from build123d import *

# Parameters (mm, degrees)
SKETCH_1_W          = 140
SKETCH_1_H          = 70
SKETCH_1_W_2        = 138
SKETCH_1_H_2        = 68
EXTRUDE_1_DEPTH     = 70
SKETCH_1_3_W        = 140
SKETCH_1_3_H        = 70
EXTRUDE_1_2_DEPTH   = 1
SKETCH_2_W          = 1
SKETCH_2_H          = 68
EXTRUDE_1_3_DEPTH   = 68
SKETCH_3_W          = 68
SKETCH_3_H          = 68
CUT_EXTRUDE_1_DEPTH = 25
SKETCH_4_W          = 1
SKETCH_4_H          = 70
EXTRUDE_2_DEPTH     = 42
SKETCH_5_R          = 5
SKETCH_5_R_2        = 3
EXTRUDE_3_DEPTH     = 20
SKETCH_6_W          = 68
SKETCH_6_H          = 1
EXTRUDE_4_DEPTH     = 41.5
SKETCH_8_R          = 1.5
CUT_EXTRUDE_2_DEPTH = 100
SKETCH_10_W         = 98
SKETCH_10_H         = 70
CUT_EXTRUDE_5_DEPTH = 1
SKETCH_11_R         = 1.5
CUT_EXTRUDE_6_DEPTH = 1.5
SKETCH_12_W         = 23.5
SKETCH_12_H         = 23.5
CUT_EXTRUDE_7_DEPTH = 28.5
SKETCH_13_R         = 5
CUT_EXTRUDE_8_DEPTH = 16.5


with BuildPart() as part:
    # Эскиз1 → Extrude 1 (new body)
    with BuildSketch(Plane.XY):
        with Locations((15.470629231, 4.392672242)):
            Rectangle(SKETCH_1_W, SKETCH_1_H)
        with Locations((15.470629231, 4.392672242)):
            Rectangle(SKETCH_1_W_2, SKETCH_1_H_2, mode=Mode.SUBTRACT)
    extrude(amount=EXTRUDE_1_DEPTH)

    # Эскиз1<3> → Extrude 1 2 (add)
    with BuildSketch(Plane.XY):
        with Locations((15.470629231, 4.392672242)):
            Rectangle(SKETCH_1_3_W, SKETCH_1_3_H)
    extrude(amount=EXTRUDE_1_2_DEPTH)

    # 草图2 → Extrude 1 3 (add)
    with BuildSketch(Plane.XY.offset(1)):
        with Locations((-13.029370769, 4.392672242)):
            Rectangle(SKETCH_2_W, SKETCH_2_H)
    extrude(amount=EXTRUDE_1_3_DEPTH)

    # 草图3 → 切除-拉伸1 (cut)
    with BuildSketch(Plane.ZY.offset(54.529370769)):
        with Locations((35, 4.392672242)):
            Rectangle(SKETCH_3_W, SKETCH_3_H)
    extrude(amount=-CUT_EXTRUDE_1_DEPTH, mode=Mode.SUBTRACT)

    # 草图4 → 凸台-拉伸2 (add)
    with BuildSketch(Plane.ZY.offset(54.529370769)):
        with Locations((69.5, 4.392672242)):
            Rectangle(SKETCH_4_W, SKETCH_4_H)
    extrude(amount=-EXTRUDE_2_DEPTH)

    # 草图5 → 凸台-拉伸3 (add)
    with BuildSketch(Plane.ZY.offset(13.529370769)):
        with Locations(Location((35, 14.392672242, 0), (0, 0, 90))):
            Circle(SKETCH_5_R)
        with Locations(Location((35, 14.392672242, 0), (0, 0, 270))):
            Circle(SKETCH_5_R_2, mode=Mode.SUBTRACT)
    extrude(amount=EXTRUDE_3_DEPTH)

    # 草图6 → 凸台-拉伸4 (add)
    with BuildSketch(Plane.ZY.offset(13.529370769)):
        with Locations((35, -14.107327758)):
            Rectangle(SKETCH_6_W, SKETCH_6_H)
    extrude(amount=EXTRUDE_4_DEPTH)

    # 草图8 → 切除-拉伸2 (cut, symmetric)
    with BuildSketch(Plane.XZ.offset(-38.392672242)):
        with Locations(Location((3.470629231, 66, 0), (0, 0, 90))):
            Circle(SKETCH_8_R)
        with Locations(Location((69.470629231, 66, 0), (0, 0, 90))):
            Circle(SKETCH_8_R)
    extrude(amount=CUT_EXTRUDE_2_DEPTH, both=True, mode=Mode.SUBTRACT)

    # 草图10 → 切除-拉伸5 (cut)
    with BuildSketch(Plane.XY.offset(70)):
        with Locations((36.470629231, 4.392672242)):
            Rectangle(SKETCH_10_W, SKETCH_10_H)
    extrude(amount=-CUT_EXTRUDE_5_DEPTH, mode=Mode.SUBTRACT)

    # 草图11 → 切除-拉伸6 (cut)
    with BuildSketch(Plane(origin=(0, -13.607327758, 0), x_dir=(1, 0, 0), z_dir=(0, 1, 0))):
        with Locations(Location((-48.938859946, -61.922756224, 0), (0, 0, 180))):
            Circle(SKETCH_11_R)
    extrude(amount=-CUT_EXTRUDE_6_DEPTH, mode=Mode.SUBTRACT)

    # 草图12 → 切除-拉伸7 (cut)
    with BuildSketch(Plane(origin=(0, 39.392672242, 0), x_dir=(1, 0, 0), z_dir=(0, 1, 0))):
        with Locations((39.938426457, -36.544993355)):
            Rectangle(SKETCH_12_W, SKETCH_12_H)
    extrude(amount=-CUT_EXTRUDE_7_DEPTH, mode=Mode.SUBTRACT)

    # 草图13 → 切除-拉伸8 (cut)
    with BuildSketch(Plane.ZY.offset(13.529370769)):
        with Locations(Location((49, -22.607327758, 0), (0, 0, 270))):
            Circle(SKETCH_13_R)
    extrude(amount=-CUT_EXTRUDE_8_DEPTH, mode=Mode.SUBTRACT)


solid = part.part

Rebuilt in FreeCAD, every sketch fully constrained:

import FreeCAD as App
import Part
import Sketcher

V = App.Vector

doc = App.newDocument("Part")
params = doc.addObject("Spreadsheet::Sheet", "Params")
for row, (alias, value) in enumerate([
    ("sketch1_width", "140 mm"),
    ("sketch1_width2", "138 mm"),
    ("sketch1_height", "70 mm"),
    ("sketch1_height2", "68 mm"),
    ("pad1_length", "70 mm"),
    ("sketch2_width", "140 mm"),
    ("sketch2_height", "70 mm"),
    ("pad2_length", "1 mm"),
    ("sketch3_width", "1 mm"),
    ("sketch3_height", "68 mm"),
    ("pad3_length", "68 mm"),
    ("sketch4_width", "68 mm"),
    ("pocket1_length", "25 mm"),
    ("sketch5_width", "70 mm"),
    ("sketch5_height", "1 mm"),
    ("pad4_length", "42 mm"),
    ("sketch6_diameter", "10 mm"),
    ("sketch6_diameter2", "6 mm"),
    ("pad5_length", "20 mm"),
    ("sketch7_width", "1 mm"),
    ("sketch7_height", "68 mm"),
    ("pad6_length", "41.5 mm"),
    ("sketch8_diameter", "3 mm"),
    ("pocket2_length", "200 mm"),
    ("sketch9_width", "98 mm"),
    ("sketch9_height", "70 mm"),
    ("pocket3_length", "1 mm"),
    ("sketch10_diameter", "3 mm"),
    ("pocket4_length", "1.5 mm"),
    ("sketch11_width", "23.5 mm"),
    ("pocket5_length", "28.5 mm"),
    ("sketch12_diameter", "10 mm"),
    ("pocket6_length", "16.5 mm"),
], start=1):
    params.set(f"A{row}", alias)
    params.set(f"B{row}", "=" + value)
    params.setAlias(f"B{row}", alias)

body = doc.addObject("PartDesign::Body", "Body")

# Sketch on XY plane
sketch1 = doc.addObject("Sketcher::SketchObject", "Sketch")
body.addObject(sketch1)
sketch1.AttachmentSupport = (doc.XY_Plane, [""])
sketch1.MapMode = "FlatFace"
sketch1.addGeometry(Part.LineSegment(V(-55, 39, 0), V(-55, -31, 0)), False)
sketch1.addGeometry(Part.LineSegment(V(-55, -31, 0), V(85, -31, 0)), False)
sketch1.addGeometry(Part.LineSegment(V(85, -31, 0), V(85, 39, 0)), False)
sketch1.addGeometry(Part.LineSegment(V(85, 39, 0), V(-55, 39, 0)), False)
sketch1.addGeometry(Part.LineSegment(V(84, -30, 0), V(-54, -30, 0)), False)
sketch1.addGeometry(Part.LineSegment(V(-54, -30, 0), V(-54, 38, 0)), False)
sketch1.addGeometry(Part.LineSegment(V(-54, 38, 0), V(84, 38, 0)), False)
sketch1.addGeometry(Part.LineSegment(V(84, 38, 0), V(84, -30, 0)), False)
sketch1.addConstraint(Sketcher.Constraint("Coincident", 0, 2, 1, 1))
sketch1.addConstraint(Sketcher.Constraint("Coincident", 1, 2, 2, 1))
sketch1.addConstraint(Sketcher.Constraint("Coincident", 2, 2, 3, 1))
sketch1.addConstraint(Sketcher.Constraint("Coincident", 3, 2, 0, 1))
sketch1.addConstraint(Sketcher.Constraint("Coincident", 4, 2, 5, 1))
sketch1.addConstraint(Sketcher.Constraint("Coincident", 5, 2, 6, 1))
sketch1.addConstraint(Sketcher.Constraint("Coincident", 6, 2, 7, 1))
sketch1.addConstraint(Sketcher.Constraint("Coincident", 7, 2, 4, 1))
sketch1.addConstraint(Sketcher.Constraint("Vertical", 0))
sketch1.addConstraint(Sketcher.Constraint("Horizontal", 1))
sketch1.addConstraint(Sketcher.Constraint("Vertical", 2))
sketch1.addConstraint(Sketcher.Constraint("Horizontal", 3))
sketch1.addConstraint(Sketcher.Constraint("Horizontal", 4))
sketch1.addConstraint(Sketcher.Constraint("Vertical", 5))
sketch1.addConstraint(Sketcher.Constraint("Horizontal", 6))
sketch1.addConstraint(Sketcher.Constraint("Vertical", 7))
sketch1.addConstraint(Sketcher.Constraint("DistanceX", 1, 1, 1, 2, 140.0))
sketch1.addConstraint(Sketcher.Constraint("DistanceX", 4, 2, 4, 1, 138.0))
sketch1.addConstraint(Sketcher.Constraint("DistanceY", 0, 2, 0, 1, 70.0))
sketch1.addConstraint(Sketcher.Constraint("DistanceY", 5, 1, 5, 2, 68.0))
sketch1.addConstraint(Sketcher.Constraint("DistanceX", 0, 2, 4, 2, 1.0))
sketch1.addConstraint(Sketcher.Constraint("DistanceY", 0, 2, 4, 2, 1.0))
sketch1.addConstraint(Sketcher.Constraint("DistanceX", 0, 2, -1, 1, 54.529371))
sketch1.addConstraint(Sketcher.Constraint("DistanceY", 0, 2, -1, 1, 30.607328))
sketch1.setExpression("Constraints[16]", "Params.sketch1_width")
sketch1.setExpression("Constraints[17]", "Params.sketch1_width2")
sketch1.setExpression("Constraints[18]", "Params.sketch1_height")
sketch1.setExpression("Constraints[19]", "Params.sketch1_height2")
pad1 = doc.addObject("PartDesign::Pad", "Pad")
body.addObject(pad1)
pad1.Profile = sketch1
pad1.setExpression("Length", "Params.pad1_length")

# Sketch on XY plane
sketch2 = doc.addObject("Sketcher::SketchObject", "Sketch001")
body.addObject(sketch2)
sketch2.AttachmentSupport = (doc.XY_Plane, [""])
sketch2.MapMode = "FlatFace"
sketch2.addGeometry(Part.LineSegment(V(-55, 39, 0), V(-55, -31, 0)), False)
sketch2.addGeometry(Part.LineSegment(V(-55, -31, 0), V(85, -31, 0)), False)
sketch2.addGeometry(Part.LineSegment(V(85, -31, 0), V(85, 39, 0)), False)
sketch2.addGeometry(Part.LineSegment(V(85, 39, 0), V(-55, 39, 0)), False)
sketch2.addConstraint(Sketcher.Constraint("Coincident", 0, 2, 1, 1))
sketch2.addConstraint(Sketcher.Constraint("Coincident", 1, 2, 2, 1))
sketch2.addConstraint(Sketcher.Constraint("Coincident", 2, 2, 3, 1))
sketch2.addConstraint(Sketcher.Constraint("Coincident", 3, 2, 0, 1))
sketch2.addConstraint(Sketcher.Constraint("Vertical", 0))
sketch2.addConstraint(Sketcher.Constraint("Horizontal", 1))
sketch2.addConstraint(Sketcher.Constraint("Vertical", 2))
sketch2.addConstraint(Sketcher.Constraint("Horizontal", 3))
sketch2.addConstraint(Sketcher.Constraint("DistanceX", 1, 1, 1, 2, 140.0))
sketch2.addConstraint(Sketcher.Constraint("DistanceY", 0, 2, 0, 1, 70.0))
sketch2.addConstraint(Sketcher.Constraint("DistanceX", 0, 2, -1, 1, 54.529371))
sketch2.addConstraint(Sketcher.Constraint("DistanceY", 0, 2, -1, 1, 30.607328))
sketch2.setExpression("Constraints[8]", "Params.sketch2_width")
sketch2.setExpression("Constraints[9]", "Params.sketch2_height")
pad2 = doc.addObject("PartDesign::Pad", "Pad001")
body.addObject(pad2)
pad2.Profile = sketch2
pad2.setExpression("Length", "Params.pad2_length")

# Sketch on XY plane
sketch3 = doc.addObject("Sketcher::SketchObject", "Sketch002")
body.addObject(sketch3)
sketch3.AttachmentSupport = (doc.XY_Plane, [""])
sketch3.MapMode = "FlatFace"
sketch3.AttachmentOffset = App.Placement(V(0, 0, 1), App.Rotation())
sketch3.addGeometry(Part.LineSegment(V(-13.5, 38.4, 0), V(-13.5, -29.6, 0)), False)
sketch3.addGeometry(Part.LineSegment(V(-13.5, -29.6, 0), V(-12.5, -29.6, 0)), False)
sketch3.addGeometry(Part.LineSegment(V(-12.5, -29.6, 0), V(-12.5, 38.4, 0)), False)
sketch3.addGeometry(Part.LineSegment(V(-12.5, 38.4, 0), V(-13.5, 38.4, 0)), False)
sketch3.addConstraint(Sketcher.Constraint("Coincident", 0, 2, 1, 1))
sketch3.addConstraint(Sketcher.Constraint("Coincident", 1, 2, 2, 1))
sketch3.addConstraint(Sketcher.Constraint("Coincident", 2, 2, 3, 1))
sketch3.addConstraint(Sketcher.Constraint("Coincident", 3, 2, 0, 1))
sketch3.addConstraint(Sketcher.Constraint("Vertical", 0))
sketch3.addConstraint(Sketcher.Constraint("Horizontal", 1))
sketch3.addConstraint(Sketcher.Constraint("Vertical", 2))
sketch3.addConstraint(Sketcher.Constraint("Horizontal", 3))
sketch3.addConstraint(Sketcher.Constraint("DistanceX", 1, 1, 1, 2, 1.0))
sketch3.addConstraint(Sketcher.Constraint("DistanceY", 0, 2, 0, 1, 68.0))
sketch3.addConstraint(Sketcher.Constraint("DistanceX", 0, 2, -1, 1, 13.529371))
sketch3.addConstraint(Sketcher.Constraint("DistanceY", 0, 2, -1, 1, 29.607328))
sketch3.setExpression("Constraints[8]", "Params.sketch3_width")
sketch3.setExpression("Constraints[9]", "Params.sketch3_height")
pad3 = doc.addObject("PartDesign::Pad", "Pad002")
body.addObject(pad3)
pad3.Profile = sketch3
pad3.setExpression("Length", "Params.pad3_length")

# Sketch on YZ plane
sketch4 = doc.addObject("Sketcher::SketchObject", "Sketch003")
body.addObject(sketch4)
sketch4.AttachmentSupport = (doc.YZ_Plane, [""])
sketch4.MapMode = "FlatFace"
sketch4.AttachmentOffset = App.Placement(V(0, 0, -54.529371), App.Rotation())
sketch4.addGeometry(Part.LineSegment(V(38, 1, 0), V(-30, 1, 0)), False)
sketch4.addGeometry(Part.LineSegment(V(-30, 1, 0), V(-30, 69, 0)), False)
sketch4.addGeometry(Part.LineSegment(V(-30, 69, 0), V(38, 69, 0)), False)
sketch4.addGeometry(Part.LineSegment(V(38, 69, 0), V(38, 1, 0)), False)
sketch4.addConstraint(Sketcher.Constraint("Coincident", 0, 2, 1, 1))
sketch4.addConstraint(Sketcher.Constraint("Coincident", 1, 2, 2, 1))
sketch4.addConstraint(Sketcher.Constraint("Coincident", 2, 2, 3, 1))
sketch4.addConstraint(Sketcher.Constraint("Coincident", 3, 2, 0, 1))
sketch4.addConstraint(Sketcher.Constraint("Horizontal", 0))
sketch4.addConstraint(Sketcher.Constraint("Vertical", 1))
sketch4.addConstraint(Sketcher.Constraint("Horizontal", 2))
sketch4.addConstraint(Sketcher.Constraint("Vertical", 3))
sketch4.addConstraint(Sketcher.Constraint("Equal", 2, 1))
sketch4.addConstraint(Sketcher.Constraint("DistanceX", 0, 2, 0, 1, 68.0))
sketch4.addConstraint(Sketcher.Constraint("DistanceY", -1, 1, 0, 2, 1.0))
sketch4.addConstraint(Sketcher.Constraint("DistanceX", 0, 2, -1, 1, 29.607328))
sketch4.setExpression("Constraints[9]", "Params.sketch4_width")
pocket1 = doc.addObject("PartDesign::Pocket", "Pocket")
body.addObject(pocket1)
pocket1.Profile = sketch4
pocket1.setExpression("Length", "Params.pocket1_length")
pocket1.Reversed = True

# Sketch on YZ plane
sketch5 = doc.addObject("Sketcher::SketchObject", "Sketch004")
body.addObject(sketch5)
sketch5.AttachmentSupport = (doc.YZ_Plane, [""])
sketch5.MapMode = "FlatFace"
sketch5.AttachmentOffset = App.Placement(V(0, 0, -54.529371), App.Rotation())
sketch5.addGeometry(Part.LineSegment(V(39.4, 69, 0), V(-30.6, 69, 0)), False)
sketch5.addGeometry(Part.LineSegment(V(-30.6, 69, 0), V(-30.6, 70, 0)), False)
sketch5.addGeometry(Part.LineSegment(V(-30.6, 70, 0), V(39.4, 70, 0)), False)
sketch5.addGeometry(Part.LineSegment(V(39.4, 70, 0), V(39.4, 69, 0)), False)
sketch5.addConstraint(Sketcher.Constraint("Coincident", 0, 2, 1, 1))
sketch5.addConstraint(Sketcher.Constraint("Coincident", 1, 2, 2, 1))
sketch5.addConstraint(Sketcher.Constraint("Coincident", 2, 2, 3, 1))
sketch5.addConstraint(Sketcher.Constraint("Coincident", 3, 2, 0, 1))
sketch5.addConstraint(Sketcher.Constraint("Horizontal", 0))
sketch5.addConstraint(Sketcher.Constraint("Vertical", 1))
sketch5.addConstraint(Sketcher.Constraint("Horizontal", 2))
sketch5.addConstraint(Sketcher.Constraint("Vertical", 3))
sketch5.addConstraint(Sketcher.Constraint("DistanceX", 0, 2, 0, 1, 70.0))
sketch5.addConstraint(Sketcher.Constraint("DistanceY", 1, 1, 1, 2, 1.0))
sketch5.addConstraint(Sketcher.Constraint("DistanceY", -1, 1, 0, 2, 69.0))
sketch5.addConstraint(Sketcher.Constraint("DistanceX", 0, 2, -1, 1, 30.607328))
sketch5.setExpression("Constraints[8]", "Params.sketch5_width")
sketch5.setExpression("Constraints[9]", "Params.sketch5_height")
pad4 = doc.addObject("PartDesign::Pad", "Pad003")
body.addObject(pad4)
pad4.Profile = sketch5
pad4.setExpression("Length", "Params.pad4_length")

# Sketch on YZ plane
sketch6 = doc.addObject("Sketcher::SketchObject", "Sketch005")
body.addObject(sketch6)
sketch6.AttachmentSupport = (doc.YZ_Plane, [""])
sketch6.MapMode = "FlatFace"
sketch6.AttachmentOffset = App.Placement(V(0, 0, -13.529371), App.Rotation())
sketch6.addGeometry(Part.Circle(V(14.4, 35, 0), V(0, 0, 1), 5), False)
sketch6.addGeometry(Part.Circle(V(14.4, 35, 0), V(0, 0, 1), 3), False)
sketch6.addConstraint(Sketcher.Constraint("Coincident", 1, 3, 0, 3))
sketch6.addConstraint(Sketcher.Constraint("Diameter", 0, 10.0))
sketch6.addConstraint(Sketcher.Constraint("Diameter", 1, 6.0))
sketch6.addConstraint(Sketcher.Constraint("DistanceY", -1, 1, 0, 3, 35.0))
sketch6.addConstraint(Sketcher.Constraint("DistanceX", -1, 1, 0, 3, 14.392672))
sketch6.setExpression("Constraints[1]", "Params.sketch6_diameter")
sketch6.setExpression("Constraints[2]", "Params.sketch6_diameter2")
pad5 = doc.addObject("PartDesign::Pad", "Pad004")
body.addObject(pad5)
pad5.Profile = sketch6
pad5.setExpression("Length", "Params.pad5_length")
pad5.Reversed = True

# Sketch on YZ plane
sketch7 = doc.addObject("Sketcher::SketchObject", "Sketch006")
body.addObject(sketch7)
sketch7.AttachmentSupport = (doc.YZ_Plane, [""])
sketch7.MapMode = "FlatFace"
sketch7.AttachmentOffset = App.Placement(V(0, 0, -13.529371), App.Rotation())
sketch7.addGeometry(Part.LineSegment(V(-13.6, 1, 0), V(-14.6, 1, 0)), False)
sketch7.addGeometry(Part.LineSegment(V(-14.6, 1, 0), V(-14.6, 69, 0)), False)
sketch7.addGeometry(Part.LineSegment(V(-14.6, 69, 0), V(-13.6, 69, 0)), False)
sketch7.addGeometry(Part.LineSegment(V(-13.6, 69, 0), V(-13.6, 1, 0)), False)
sketch7.addConstraint(Sketcher.Constraint("Coincident", 0, 2, 1, 1))
sketch7.addConstraint(Sketcher.Constraint("Coincident", 1, 2, 2, 1))
sketch7.addConstraint(Sketcher.Constraint("Coincident", 2, 2, 3, 1))
sketch7.addConstraint(Sketcher.Constraint("Coincident", 3, 2, 0, 1))
sketch7.addConstraint(Sketcher.Constraint("Horizontal", 0))
sketch7.addConstraint(Sketcher.Constraint("Vertical", 1))
sketch7.addConstraint(Sketcher.Constraint("Horizontal", 2))
sketch7.addConstraint(Sketcher.Constraint("Vertical", 3))
sketch7.addConstraint(Sketcher.Constraint("DistanceX", 0, 2, 0, 1, 1.0))
sketch7.addConstraint(Sketcher.Constraint("DistanceY", 1, 1, 1, 2, 68.0))
sketch7.addConstraint(Sketcher.Constraint("DistanceY", -1, 1, 0, 2, 1.0))
sketch7.addConstraint(Sketcher.Constraint("DistanceX", 0, 2, -1, 1, 14.607328))
sketch7.setExpression("Constraints[8]", "Params.sketch7_width")
sketch7.setExpression("Constraints[9]", "Params.sketch7_height")
pad6 = doc.addObject("PartDesign::Pad", "Pad005")
body.addObject(pad6)
pad6.Profile = sketch7
pad6.setExpression("Length", "Params.pad6_length")
pad6.Reversed = True

# Sketch on XZ plane
sketch8 = doc.addObject("Sketcher::SketchObject", "Sketch007")
body.addObject(sketch8)
sketch8.AttachmentSupport = (doc.XZ_Plane, [""])
sketch8.MapMode = "FlatFace"
sketch8.AttachmentOffset = App.Placement(V(0, 0, -38.392672), App.Rotation())
sketch8.addGeometry(Part.Circle(V(3.5, 66, 0), V(0, 0, 1), 1.5), False)
sketch8.addGeometry(Part.Circle(V(69.5, 66, 0), V(0, 0, 1), 1.5), False)
sketch8.addConstraint(Sketcher.Constraint("Equal", 0, 1))
sketch8.addConstraint(Sketcher.Constraint("Horizontal", 0, 3, 1, 3))
sketch8.addConstraint(Sketcher.Constraint("Diameter", 0, 3.0))
sketch8.addConstraint(Sketcher.Constraint("DistanceY", -1, 1, 0, 3, 66.0))
sketch8.addConstraint(Sketcher.Constraint("DistanceX", 0, 3, 1, 3, 66.0))
sketch8.addConstraint(Sketcher.Constraint("DistanceX", -1, 1, 0, 3, 3.470629))
sketch8.setExpression("Constraints[2]", "Params.sketch8_diameter")
pocket2 = doc.addObject("PartDesign::Pocket", "Pocket001")
body.addObject(pocket2)
pocket2.Profile = sketch8
pocket2.setExpression("Length", "Params.pocket2_length")
pocket2.Midplane = True

# Sketch on XY plane
sketch9 = doc.addObject("Sketcher::SketchObject", "Sketch008")
body.addObject(sketch9)
sketch9.AttachmentSupport = (doc.XY_Plane, [""])
sketch9.MapMode = "FlatFace"
sketch9.AttachmentOffset = App.Placement(V(0, 0, 70), App.Rotation())
sketch9.addGeometry(Part.LineSegment(V(-13, 39, 0), V(-13, -31, 0)), False)
sketch9.addGeometry(Part.LineSegment(V(-13, -31, 0), V(85, -31, 0)), False)
sketch9.addGeometry(Part.LineSegment(V(85, -31, 0), V(85, 39, 0)), False)
sketch9.addGeometry(Part.LineSegment(V(85, 39, 0), V(-13, 39, 0)), False)
sketch9.addConstraint(Sketcher.Constraint("Coincident", 0, 2, 1, 1))
sketch9.addConstraint(Sketcher.Constraint("Coincident", 1, 2, 2, 1))
sketch9.addConstraint(Sketcher.Constraint("Coincident", 2, 2, 3, 1))
sketch9.addConstraint(Sketcher.Constraint("Coincident", 3, 2, 0, 1))
sketch9.addConstraint(Sketcher.Constraint("Vertical", 0))
sketch9.addConstraint(Sketcher.Constraint("Horizontal", 1))
sketch9.addConstraint(Sketcher.Constraint("Vertical", 2))
sketch9.addConstraint(Sketcher.Constraint("Horizontal", 3))
sketch9.addConstraint(Sketcher.Constraint("DistanceX", 1, 1, 1, 2, 98.0))
sketch9.addConstraint(Sketcher.Constraint("DistanceY", 0, 2, 0, 1, 70.0))
sketch9.addConstraint(Sketcher.Constraint("DistanceX", 0, 2, -1, 1, 12.529371))
sketch9.addConstraint(Sketcher.Constraint("DistanceY", 0, 2, -1, 1, 30.607328))
sketch9.setExpression("Constraints[8]", "Params.sketch9_width")
sketch9.setExpression("Constraints[9]", "Params.sketch9_height")
pocket3 = doc.addObject("PartDesign::Pocket", "Pocket002")
body.addObject(pocket3)
pocket3.Profile = sketch9
pocket3.setExpression("Length", "Params.pocket3_length")

# Sketch on XZ plane
sketch10 = doc.addObject("Sketcher::SketchObject", "Sketch009")
body.addObject(sketch10)
sketch10.AttachmentSupport = (doc.XZ_Plane, [""])
sketch10.MapMode = "FlatFace"
sketch10.AttachmentOffset = App.Placement(V(0, 0, 13.607328), App.Rotation())
sketch10.addGeometry(Part.Circle(V(-48.9, 61.9, 0), V(0, 0, 1), 1.5), False)
sketch10.addConstraint(Sketcher.Constraint("Diameter", 0, 3.0))
sketch10.addConstraint(Sketcher.Constraint("DistanceX", 0, 3, -1, 1, 48.93886))
sketch10.addConstraint(Sketcher.Constraint("DistanceY", -1, 1, 0, 3, 61.922756))
sketch10.setExpression("Constraints[0]", "Params.sketch10_diameter")
pocket4 = doc.addObject("PartDesign::Pocket", "Pocket003")
body.addObject(pocket4)
pocket4.Profile = sketch10
pocket4.setExpression("Length", "Params.pocket4_length")
pocket4.Reversed = True

# Sketch on XZ plane
sketch11 = doc.addObject("Sketcher::SketchObject", "Sketch010")
body.addObject(sketch11)
sketch11.AttachmentSupport = (doc.XZ_Plane, [""])
sketch11.MapMode = "FlatFace"
sketch11.AttachmentOffset = App.Placement(V(0, 0, -39.392672), App.Rotation())
sketch11.addGeometry(Part.LineSegment(V(28, 25, 0), V(28, 48, 0)), False)
sketch11.addGeometry(Part.LineSegment(V(28, 48, 0), V(52, 48, 0)), False)
sketch11.addGeometry(Part.LineSegment(V(52, 48, 0), V(52, 25, 0)), False)
sketch11.addGeometry(Part.LineSegment(V(52, 25, 0), V(28, 25, 0)), False)
sketch11.addConstraint(Sketcher.Constraint("Coincident", 0, 2, 1, 1))
sketch11.addConstraint(Sketcher.Constraint("Coincident", 1, 2, 2, 1))
sketch11.addConstraint(Sketcher.Constraint("Coincident", 2, 2, 3, 1))
sketch11.addConstraint(Sketcher.Constraint("Coincident", 3, 2, 0, 1))
sketch11.addConstraint(Sketcher.Constraint("Vertical", 0))
sketch11.addConstraint(Sketcher.Constraint("Horizontal", 1))
sketch11.addConstraint(Sketcher.Constraint("Vertical", 2))
sketch11.addConstraint(Sketcher.Constraint("Horizontal", 3))
sketch11.addConstraint(Sketcher.Constraint("Equal", 3, 0))
sketch11.addConstraint(Sketcher.Constraint("DistanceX", 1, 1, 1, 2, 23.5))
sketch11.addConstraint(Sketcher.Constraint("DistanceX", -1, 1, 0, 2, 28.188426))
sketch11.addConstraint(Sketcher.Constraint("DistanceY", -1, 1, 0, 2, 48.294993))
sketch11.setExpression("Constraints[9]", "Params.sketch11_width")
pocket5 = doc.addObject("PartDesign::Pocket", "Pocket004")
body.addObject(pocket5)
pocket5.Profile = sketch11
pocket5.setExpression("Length", "Params.pocket5_length")
pocket5.Reversed = True

# Sketch on YZ plane
sketch12 = doc.addObject("Sketcher::SketchObject", "Sketch011")
body.addObject(sketch12)
sketch12.AttachmentSupport = (doc.YZ_Plane, [""])
sketch12.MapMode = "FlatFace"
sketch12.AttachmentOffset = App.Placement(V(0, 0, -13.529371), App.Rotation())
sketch12.addGeometry(Part.Circle(V(-23, 49, 0), V(0, 0, 1), 5), False)
sketch12.addConstraint(Sketcher.Constraint("Diameter", 0, 10.0))
sketch12.addConstraint(Sketcher.Constraint("DistanceY", -1, 1, 0, 3, 49.0))
sketch12.addConstraint(Sketcher.Constraint("DistanceX", 0, 3, -1, 1, 22.607328))
sketch12.setExpression("Constraints[0]", "Params.sketch12_diameter")
pocket6 = doc.addObject("PartDesign::Pocket", "Pocket005")
body.addObject(pocket6)
pocket6.Profile = sketch12
pocket6.setExpression("Length", "Params.pocket6_length")
pocket6.Reversed = True

doc.recompute()
